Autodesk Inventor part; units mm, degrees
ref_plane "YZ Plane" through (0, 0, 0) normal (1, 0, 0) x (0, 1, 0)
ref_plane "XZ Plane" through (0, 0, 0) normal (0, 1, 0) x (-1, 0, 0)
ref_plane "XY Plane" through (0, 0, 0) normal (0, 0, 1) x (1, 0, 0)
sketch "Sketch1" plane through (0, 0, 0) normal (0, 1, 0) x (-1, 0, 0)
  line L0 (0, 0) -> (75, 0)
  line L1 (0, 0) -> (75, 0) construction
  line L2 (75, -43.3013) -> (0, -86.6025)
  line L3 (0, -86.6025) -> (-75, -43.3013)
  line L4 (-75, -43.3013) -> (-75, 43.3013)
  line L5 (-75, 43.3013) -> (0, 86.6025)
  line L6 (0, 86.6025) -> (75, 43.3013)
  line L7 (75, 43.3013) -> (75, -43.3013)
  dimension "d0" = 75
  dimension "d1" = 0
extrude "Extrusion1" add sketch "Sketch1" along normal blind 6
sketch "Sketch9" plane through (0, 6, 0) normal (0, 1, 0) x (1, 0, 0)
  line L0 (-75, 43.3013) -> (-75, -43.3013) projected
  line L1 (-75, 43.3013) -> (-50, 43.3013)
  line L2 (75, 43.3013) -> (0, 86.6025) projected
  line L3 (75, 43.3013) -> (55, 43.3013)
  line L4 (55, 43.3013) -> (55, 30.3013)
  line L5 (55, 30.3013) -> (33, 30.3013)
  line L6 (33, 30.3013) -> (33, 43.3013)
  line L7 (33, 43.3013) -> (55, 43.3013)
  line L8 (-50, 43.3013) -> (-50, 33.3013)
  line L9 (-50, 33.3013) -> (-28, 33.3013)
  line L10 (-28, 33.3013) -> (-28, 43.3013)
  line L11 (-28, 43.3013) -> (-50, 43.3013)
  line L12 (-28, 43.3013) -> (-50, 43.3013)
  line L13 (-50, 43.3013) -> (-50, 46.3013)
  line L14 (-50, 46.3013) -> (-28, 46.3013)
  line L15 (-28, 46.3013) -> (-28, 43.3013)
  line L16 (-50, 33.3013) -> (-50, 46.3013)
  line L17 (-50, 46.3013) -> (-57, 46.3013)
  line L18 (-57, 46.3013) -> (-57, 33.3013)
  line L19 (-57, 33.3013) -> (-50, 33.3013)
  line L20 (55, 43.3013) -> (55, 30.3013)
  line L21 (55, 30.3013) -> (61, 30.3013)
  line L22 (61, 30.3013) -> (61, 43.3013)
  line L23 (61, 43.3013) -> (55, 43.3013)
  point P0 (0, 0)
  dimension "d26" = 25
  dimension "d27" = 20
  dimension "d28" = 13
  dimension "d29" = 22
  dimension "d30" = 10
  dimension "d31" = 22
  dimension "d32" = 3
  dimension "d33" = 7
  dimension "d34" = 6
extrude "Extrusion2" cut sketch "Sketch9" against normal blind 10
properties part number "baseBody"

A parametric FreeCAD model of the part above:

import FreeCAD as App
import Part
import Sketcher
Q = App.Units.Quantity


def add_polygon(sketch, points):
    """Adds a closed chain of lines whose ends are joined by coincident constraints."""
    first, n = sketch.GeometryCount, len(points)
    for a, b in zip(points, points[1:] + points[:1]):
        sketch.addGeometry(Part.LineSegment(App.Vector(*a, 0), App.Vector(*b, 0)), False)
    for i in range(n):
        sketch.addConstraint(Sketcher.Constraint("Coincident", first + i, 2, first + (i + 1) % n, 1))

doc = App.newDocument("Part")
body = doc.addObject("PartDesign::Body", "Body")

sketch1 = body.newObject("Sketcher::SketchObject", "Sketch")
sketch1.AttachmentSupport = (doc.getObject("XZ_Plane"), [""])
sketch1.MapMode = "FlatFace"
add_polygon(sketch1, [(0, -86.6025), (-75, -43.3013), (-75, 43.3013), (0, 86.6025), (75, 43.3013), (75, -43.3013)])
sketch1.addConstraint([
    Sketcher.Constraint("Vertical", 1),
    Sketcher.Constraint("Vertical", 4),
    Sketcher.Constraint("Symmetric", 0, 2, 3, 2, -1, 1),
    Sketcher.Constraint("Symmetric", 2, 2, 5, 2, -1, 1),
    Sketcher.Constraint("PointOnObject", 2, 2, -2),
    Sketcher.Constraint("Parallel", 2, 5),
    Sketcher.Constraint("Horizontal", 1, 2, 3, 2),
    Sketcher.Constraint("DistanceX", 0, 2, -1, 1, 75.0),
    Sketcher.Constraint("Angle", 0, Q("150 deg")),
    Sketcher.Constraint("DistanceY", 1, 1, 1, 2, 86.6026),
])
pad1 = body.newObject("PartDesign::Pad", "Pad")
pad1.Profile = sketch1
pad1.Length = 6
pad1.Reversed = True

sketch2 = body.newObject("Sketcher::SketchObject", "Sketch001")
sketch2.AttachmentSupport = (doc.getObject("XZ_Plane"), [""])
sketch2.MapMode = "FlatFace"
sketch2.AttachmentOffset = App.Placement(App.Vector(0, 0, -6), App.Rotation())
add_polygon(sketch2, [(-57, -46.3013), (-57, -33.3013), (-28, -33.3013), (-28, -46.3013)])
add_polygon(sketch2, [(61, -30.3013), (61, -43.3013), (33, -43.3013), (33, -30.3013)])
sketch2.addConstraint([
    Sketcher.Constraint("Vertical", 0),
    Sketcher.Constraint("Horizontal", 1),
    Sketcher.Constraint("Vertical", 2),
    Sketcher.Constraint("Horizontal", 3),
    Sketcher.Constraint("Vertical", 4),
    Sketcher.Constraint("Horizontal", 5),
    Sketcher.Constraint("Vertical", 6),
    Sketcher.Constraint("Horizontal", 7),
    Sketcher.Constraint("Equal", 2, 4),
    Sketcher.Constraint("DistanceY", 0, 1, 0, 2, 13.0),
    Sketcher.Constraint("DistanceY", 2, 2, 4, 2, 3.0),
    Sketcher.Constraint("DistanceX", 1, 1, 1, 2, 29.0),
    Sketcher.Constraint("DistanceX", 5, 2, 5, 1, 28.0),
    Sketcher.Constraint("DistanceX", 0, 2, -1, 1, 57.0),
    Sketcher.Constraint("DistanceX", -1, 1, 4, 2, 61.0),
    Sketcher.Constraint("DistanceY", 0, 2, -1, 1, 33.3013),
])
pocket1 = body.newObject("PartDesign::Pocket", "Pocket")
pocket1.Profile = sketch2
pocket1.Length = 10
pocket1.Reversed = True

doc.recompute()
